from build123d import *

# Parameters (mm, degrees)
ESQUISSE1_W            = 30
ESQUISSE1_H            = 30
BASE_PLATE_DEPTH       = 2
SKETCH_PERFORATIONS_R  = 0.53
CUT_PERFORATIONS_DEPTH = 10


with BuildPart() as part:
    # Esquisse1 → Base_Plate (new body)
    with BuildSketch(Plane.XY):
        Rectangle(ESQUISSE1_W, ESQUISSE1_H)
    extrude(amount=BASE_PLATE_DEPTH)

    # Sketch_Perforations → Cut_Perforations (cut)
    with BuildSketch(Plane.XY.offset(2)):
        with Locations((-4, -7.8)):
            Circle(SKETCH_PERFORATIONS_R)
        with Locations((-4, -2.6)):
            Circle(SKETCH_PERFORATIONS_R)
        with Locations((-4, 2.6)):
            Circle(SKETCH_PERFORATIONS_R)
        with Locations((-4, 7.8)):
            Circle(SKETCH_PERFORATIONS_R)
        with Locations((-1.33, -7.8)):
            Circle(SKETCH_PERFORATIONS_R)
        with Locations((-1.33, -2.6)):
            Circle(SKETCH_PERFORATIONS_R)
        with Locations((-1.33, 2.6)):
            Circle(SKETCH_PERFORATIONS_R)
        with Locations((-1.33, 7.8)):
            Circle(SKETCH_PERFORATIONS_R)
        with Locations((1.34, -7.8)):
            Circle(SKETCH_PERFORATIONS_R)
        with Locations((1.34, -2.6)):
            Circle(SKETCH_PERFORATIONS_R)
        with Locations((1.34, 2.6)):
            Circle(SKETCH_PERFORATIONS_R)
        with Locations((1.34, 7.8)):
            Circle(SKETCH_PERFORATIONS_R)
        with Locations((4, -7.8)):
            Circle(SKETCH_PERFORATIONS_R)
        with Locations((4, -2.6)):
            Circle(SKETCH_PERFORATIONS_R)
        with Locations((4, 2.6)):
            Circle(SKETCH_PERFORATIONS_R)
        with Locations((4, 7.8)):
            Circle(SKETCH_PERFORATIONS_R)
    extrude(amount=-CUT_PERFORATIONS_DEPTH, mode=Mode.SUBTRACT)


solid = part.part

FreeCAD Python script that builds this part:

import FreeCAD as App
import Part
import Sketcher

V = App.Vector
Q = App.Units.Quantity

doc = App.newDocument("Part")
body = doc.addObject("PartDesign::Body", "Body")

# Sketch on XY plane
sketch1 = body.newObject("Sketcher::SketchObject", "Sketch")
sketch1.AttachmentSupport = (doc.getObject("XY_Plane"), [""])
sketch1.MapMode = "FlatFace"
sketch1.addGeometry(Part.LineSegment(V(-15, 15, 0), V(-15, -15, 0)), False)
sketch1.addGeometry(Part.LineSegment(V(-15, -15, 0), V(15, -15, 0)), False)
sketch1.addGeometry(Part.LineSegment(V(15, -15, 0), V(15, 15, 0)), False)
sketch1.addGeometry(Part.LineSegment(V(15, 15, 0), V(-15, 15, 0)), False)
sketch1.addConstraint(Sketcher.Constraint("Coincident", 0, 2, 1, 1))
sketch1.addConstraint(Sketcher.Constraint("Coincident", 1, 2, 2, 1))
sketch1.addConstraint(Sketcher.Constraint("Coincident", 2, 2, 3, 1))
sketch1.addConstraint(Sketcher.Constraint("Coincident", 3, 2, 0, 1))
sketch1.addConstraint(Sketcher.Constraint("Vertical", 0))
sketch1.addConstraint(Sketcher.Constraint("Horizontal", 1))
sketch1.addConstraint(Sketcher.Constraint("Vertical", 2))
sketch1.addConstraint(Sketcher.Constraint("Horizontal", 3))
sketch1.addConstraint(Sketcher.Constraint("Symmetric", 0, 2, 2, 2, -1, 1))
sketch1.addConstraint(Sketcher.Constraint("Equal", 3, 0))
sketch1.addConstraint(Sketcher.Constraint("DistanceX", 1, 1, 1, 2, Q("30 mm")))
pad1 = body.newObject("PartDesign::Pad", "Pad")
pad1.Profile = sketch1
pad1.Length = 2

# Sketch on XY plane
sketch2 = body.newObject("Sketcher::SketchObject", "Sketch001")
sketch2.AttachmentSupport = (doc.getObject("XY_Plane"), [""])
sketch2.MapMode = "FlatFace"
sketch2.AttachmentOffset = App.Placement(V(0, 0, 2), App.Rotation())
sketch2.addGeometry(Part.Circle(V(-4, -7.8, 0), V(0, 0, 1), 0.5), False)
sketch2.addGeometry(Part.Circle(V(-4, -2.6, 0), V(0, 0, 1), 0.5), False)
sketch2.addGeometry(Part.Circle(V(-4, 2.6, 0), V(0, 0, 1), 0.5), False)
sketch2.addGeometry(Part.Circle(V(-4, 7.8, 0), V(0, 0, 1), 0.5), False)
sketch2.addGeometry(Part.Circle(V(-1.3, -7.8, 0), V(0, 0, 1), 0.5), False)
sketch2.addGeometry(Part.Circle(V(-1.3, -2.6, 0), V(0, 0, 1), 0.5), False)
sketch2.addGeometry(Part.Circle(V(-1.3, 2.6, 0), V(0, 0, 1), 0.5), False)
sketch2.addGeometry(Part.Circle(V(-1.3, 7.8, 0), V(0, 0, 1), 0.5), False)
sketch2.addGeometry(Part.Circle(V(1.3, -7.8, 0), V(0, 0, 1), 0.5), False)
sketch2.addGeometry(Part.Circle(V(1.3, -2.6, 0), V(0, 0, 1), 0.5), False)
sketch2.addGeometry(Part.Circle(V(1.3, 2.6, 0), V(0, 0, 1), 0.5), False)
sketch2.addGeometry(Part.Circle(V(1.3, 7.8, 0), V(0, 0, 1), 0.5), False)
sketch2.addGeometry(Part.Circle(V(4, -7.8, 0), V(0, 0, 1), 0.5), False)
sketch2.addGeometry(Part.Circle(V(4, -2.6, 0), V(0, 0, 1), 0.5), False)
sketch2.addGeometry(Part.Circle(V(4, 2.6, 0), V(0, 0, 1), 0.5), False)
sketch2.addGeometry(Part.Circle(V(4, 7.8, 0), V(0, 0, 1), 0.5), False)
sketch2.addConstraint(Sketcher.Constraint("Equal", 0, 1))
sketch2.addConstraint(Sketcher.Constraint("Equal", 1, 2))
sketch2.addConstraint(Sketcher.Constraint("Equal", 2, 3))
sketch2.addConstraint(Sketcher.Constraint("Equal", 3, 4))
sketch2.addConstraint(Sketcher.Constraint("Equal", 4, 5))
sketch2.addConstraint(Sketcher.Constraint("Equal", 5, 6))
sketch2.addConstraint(Sketcher.Constraint("Equal", 6, 7))
sketch2.addConstraint(Sketcher.Constraint("Equal", 7, 8))
sketch2.addConstraint(Sketcher.Constraint("Equal", 8, 9))
sketch2.addConstraint(Sketcher.Constraint("Equal", 9, 10))
sketch2.addConstraint(Sketcher.Constraint("Equal", 10, 11))
sketch2.addConstraint(Sketcher.Constraint("Equal", 11, 12))
sketch2.addConstraint(Sketcher.Constraint("Equal", 12, 13))
sketch2.addConstraint(Sketcher.Constraint("Equal", 13, 14))
sketch2.addConstraint(Sketcher.Constraint("Equal", 14, 15))
sketch2.addConstraint(Sketcher.Constraint("Symmetric", 3, 3, 12, 3, -1, 1))
sketch2.addConstraint(Sketcher.Constraint("Symmetric", 2, 3, 13, 3, -1, 1))
sketch2.addConstraint(Sketcher.Constraint("Symmetric", 1, 3, 14, 3, -1, 1))
sketch2.addConstraint(Sketcher.Constraint("Symmetric", 0, 3, 15, 3, -1, 1))
sketch2.addConstraint(Sketcher.Constraint("Symmetric", 0, 3, 12, 3, -2))
sketch2.addConstraint(Sketcher.Constraint("Symmetric", 1, 3, 13, 3, -2))
sketch2.addConstraint(Sketcher.Constraint("Symmetric", 5, 3, 6, 3, -1))
sketch2.addConstraint(Sketcher.Constraint("Symmetric", 4, 3, 7, 3, -1))
sketch2.addConstraint(Sketcher.Constraint("Symmetric", 9, 3, 10, 3, -1))
sketch2.addConstraint(Sketcher.Constraint("Symmetric", 8, 3, 11, 3, -1))
sketch2.addConstraint(Sketcher.Constraint("Horizontal", 0, 3, 4, 3))
sketch2.addConstraint(Sketcher.Constraint("Horizontal", 1, 3, 5, 3))
sketch2.addConstraint(Sketcher.Constraint("Horizontal", 4, 3, 8, 3))
sketch2.addConstraint(Sketcher.Constraint("Horizontal", 5, 3, 9, 3))
sketch2.addConstraint(Sketcher.Constraint("Vertical", 0, 3, 1, 3))
sketch2.addConstraint(Sketcher.Constraint("Vertical", 4, 3, 5, 3))
sketch2.addConstraint(Sketcher.Constraint("Vertical", 8, 3, 9, 3))
sketch2.addConstraint(Sketcher.Constraint("Diameter", 0, Q("1.06 mm")))
sketch2.addConstraint(Sketcher.Constraint("DistanceX", 0, 3, -1, 1, Q("4 mm")))
sketch2.addConstraint(Sketcher.Constraint("DistanceY", 0, 3, -1, 1, Q("7.8 mm")))
sketch2.addConstraint(Sketcher.Constraint("DistanceY", 1, 3, -1, 1, Q("2.6 mm")))
sketch2.addConstraint(Sketcher.Constraint("DistanceX", 4, 3, -1, 1, Q("1.33 mm")))
sketch2.addConstraint(Sketcher.Constraint("DistanceX", -1, 1, 8, 3, Q("1.34 mm")))
pocket1 = body.newObject("PartDesign::Pocket", "Pocket")
pocket1.Profile = sketch2
pocket1.Length = 10

doc.recompute()
